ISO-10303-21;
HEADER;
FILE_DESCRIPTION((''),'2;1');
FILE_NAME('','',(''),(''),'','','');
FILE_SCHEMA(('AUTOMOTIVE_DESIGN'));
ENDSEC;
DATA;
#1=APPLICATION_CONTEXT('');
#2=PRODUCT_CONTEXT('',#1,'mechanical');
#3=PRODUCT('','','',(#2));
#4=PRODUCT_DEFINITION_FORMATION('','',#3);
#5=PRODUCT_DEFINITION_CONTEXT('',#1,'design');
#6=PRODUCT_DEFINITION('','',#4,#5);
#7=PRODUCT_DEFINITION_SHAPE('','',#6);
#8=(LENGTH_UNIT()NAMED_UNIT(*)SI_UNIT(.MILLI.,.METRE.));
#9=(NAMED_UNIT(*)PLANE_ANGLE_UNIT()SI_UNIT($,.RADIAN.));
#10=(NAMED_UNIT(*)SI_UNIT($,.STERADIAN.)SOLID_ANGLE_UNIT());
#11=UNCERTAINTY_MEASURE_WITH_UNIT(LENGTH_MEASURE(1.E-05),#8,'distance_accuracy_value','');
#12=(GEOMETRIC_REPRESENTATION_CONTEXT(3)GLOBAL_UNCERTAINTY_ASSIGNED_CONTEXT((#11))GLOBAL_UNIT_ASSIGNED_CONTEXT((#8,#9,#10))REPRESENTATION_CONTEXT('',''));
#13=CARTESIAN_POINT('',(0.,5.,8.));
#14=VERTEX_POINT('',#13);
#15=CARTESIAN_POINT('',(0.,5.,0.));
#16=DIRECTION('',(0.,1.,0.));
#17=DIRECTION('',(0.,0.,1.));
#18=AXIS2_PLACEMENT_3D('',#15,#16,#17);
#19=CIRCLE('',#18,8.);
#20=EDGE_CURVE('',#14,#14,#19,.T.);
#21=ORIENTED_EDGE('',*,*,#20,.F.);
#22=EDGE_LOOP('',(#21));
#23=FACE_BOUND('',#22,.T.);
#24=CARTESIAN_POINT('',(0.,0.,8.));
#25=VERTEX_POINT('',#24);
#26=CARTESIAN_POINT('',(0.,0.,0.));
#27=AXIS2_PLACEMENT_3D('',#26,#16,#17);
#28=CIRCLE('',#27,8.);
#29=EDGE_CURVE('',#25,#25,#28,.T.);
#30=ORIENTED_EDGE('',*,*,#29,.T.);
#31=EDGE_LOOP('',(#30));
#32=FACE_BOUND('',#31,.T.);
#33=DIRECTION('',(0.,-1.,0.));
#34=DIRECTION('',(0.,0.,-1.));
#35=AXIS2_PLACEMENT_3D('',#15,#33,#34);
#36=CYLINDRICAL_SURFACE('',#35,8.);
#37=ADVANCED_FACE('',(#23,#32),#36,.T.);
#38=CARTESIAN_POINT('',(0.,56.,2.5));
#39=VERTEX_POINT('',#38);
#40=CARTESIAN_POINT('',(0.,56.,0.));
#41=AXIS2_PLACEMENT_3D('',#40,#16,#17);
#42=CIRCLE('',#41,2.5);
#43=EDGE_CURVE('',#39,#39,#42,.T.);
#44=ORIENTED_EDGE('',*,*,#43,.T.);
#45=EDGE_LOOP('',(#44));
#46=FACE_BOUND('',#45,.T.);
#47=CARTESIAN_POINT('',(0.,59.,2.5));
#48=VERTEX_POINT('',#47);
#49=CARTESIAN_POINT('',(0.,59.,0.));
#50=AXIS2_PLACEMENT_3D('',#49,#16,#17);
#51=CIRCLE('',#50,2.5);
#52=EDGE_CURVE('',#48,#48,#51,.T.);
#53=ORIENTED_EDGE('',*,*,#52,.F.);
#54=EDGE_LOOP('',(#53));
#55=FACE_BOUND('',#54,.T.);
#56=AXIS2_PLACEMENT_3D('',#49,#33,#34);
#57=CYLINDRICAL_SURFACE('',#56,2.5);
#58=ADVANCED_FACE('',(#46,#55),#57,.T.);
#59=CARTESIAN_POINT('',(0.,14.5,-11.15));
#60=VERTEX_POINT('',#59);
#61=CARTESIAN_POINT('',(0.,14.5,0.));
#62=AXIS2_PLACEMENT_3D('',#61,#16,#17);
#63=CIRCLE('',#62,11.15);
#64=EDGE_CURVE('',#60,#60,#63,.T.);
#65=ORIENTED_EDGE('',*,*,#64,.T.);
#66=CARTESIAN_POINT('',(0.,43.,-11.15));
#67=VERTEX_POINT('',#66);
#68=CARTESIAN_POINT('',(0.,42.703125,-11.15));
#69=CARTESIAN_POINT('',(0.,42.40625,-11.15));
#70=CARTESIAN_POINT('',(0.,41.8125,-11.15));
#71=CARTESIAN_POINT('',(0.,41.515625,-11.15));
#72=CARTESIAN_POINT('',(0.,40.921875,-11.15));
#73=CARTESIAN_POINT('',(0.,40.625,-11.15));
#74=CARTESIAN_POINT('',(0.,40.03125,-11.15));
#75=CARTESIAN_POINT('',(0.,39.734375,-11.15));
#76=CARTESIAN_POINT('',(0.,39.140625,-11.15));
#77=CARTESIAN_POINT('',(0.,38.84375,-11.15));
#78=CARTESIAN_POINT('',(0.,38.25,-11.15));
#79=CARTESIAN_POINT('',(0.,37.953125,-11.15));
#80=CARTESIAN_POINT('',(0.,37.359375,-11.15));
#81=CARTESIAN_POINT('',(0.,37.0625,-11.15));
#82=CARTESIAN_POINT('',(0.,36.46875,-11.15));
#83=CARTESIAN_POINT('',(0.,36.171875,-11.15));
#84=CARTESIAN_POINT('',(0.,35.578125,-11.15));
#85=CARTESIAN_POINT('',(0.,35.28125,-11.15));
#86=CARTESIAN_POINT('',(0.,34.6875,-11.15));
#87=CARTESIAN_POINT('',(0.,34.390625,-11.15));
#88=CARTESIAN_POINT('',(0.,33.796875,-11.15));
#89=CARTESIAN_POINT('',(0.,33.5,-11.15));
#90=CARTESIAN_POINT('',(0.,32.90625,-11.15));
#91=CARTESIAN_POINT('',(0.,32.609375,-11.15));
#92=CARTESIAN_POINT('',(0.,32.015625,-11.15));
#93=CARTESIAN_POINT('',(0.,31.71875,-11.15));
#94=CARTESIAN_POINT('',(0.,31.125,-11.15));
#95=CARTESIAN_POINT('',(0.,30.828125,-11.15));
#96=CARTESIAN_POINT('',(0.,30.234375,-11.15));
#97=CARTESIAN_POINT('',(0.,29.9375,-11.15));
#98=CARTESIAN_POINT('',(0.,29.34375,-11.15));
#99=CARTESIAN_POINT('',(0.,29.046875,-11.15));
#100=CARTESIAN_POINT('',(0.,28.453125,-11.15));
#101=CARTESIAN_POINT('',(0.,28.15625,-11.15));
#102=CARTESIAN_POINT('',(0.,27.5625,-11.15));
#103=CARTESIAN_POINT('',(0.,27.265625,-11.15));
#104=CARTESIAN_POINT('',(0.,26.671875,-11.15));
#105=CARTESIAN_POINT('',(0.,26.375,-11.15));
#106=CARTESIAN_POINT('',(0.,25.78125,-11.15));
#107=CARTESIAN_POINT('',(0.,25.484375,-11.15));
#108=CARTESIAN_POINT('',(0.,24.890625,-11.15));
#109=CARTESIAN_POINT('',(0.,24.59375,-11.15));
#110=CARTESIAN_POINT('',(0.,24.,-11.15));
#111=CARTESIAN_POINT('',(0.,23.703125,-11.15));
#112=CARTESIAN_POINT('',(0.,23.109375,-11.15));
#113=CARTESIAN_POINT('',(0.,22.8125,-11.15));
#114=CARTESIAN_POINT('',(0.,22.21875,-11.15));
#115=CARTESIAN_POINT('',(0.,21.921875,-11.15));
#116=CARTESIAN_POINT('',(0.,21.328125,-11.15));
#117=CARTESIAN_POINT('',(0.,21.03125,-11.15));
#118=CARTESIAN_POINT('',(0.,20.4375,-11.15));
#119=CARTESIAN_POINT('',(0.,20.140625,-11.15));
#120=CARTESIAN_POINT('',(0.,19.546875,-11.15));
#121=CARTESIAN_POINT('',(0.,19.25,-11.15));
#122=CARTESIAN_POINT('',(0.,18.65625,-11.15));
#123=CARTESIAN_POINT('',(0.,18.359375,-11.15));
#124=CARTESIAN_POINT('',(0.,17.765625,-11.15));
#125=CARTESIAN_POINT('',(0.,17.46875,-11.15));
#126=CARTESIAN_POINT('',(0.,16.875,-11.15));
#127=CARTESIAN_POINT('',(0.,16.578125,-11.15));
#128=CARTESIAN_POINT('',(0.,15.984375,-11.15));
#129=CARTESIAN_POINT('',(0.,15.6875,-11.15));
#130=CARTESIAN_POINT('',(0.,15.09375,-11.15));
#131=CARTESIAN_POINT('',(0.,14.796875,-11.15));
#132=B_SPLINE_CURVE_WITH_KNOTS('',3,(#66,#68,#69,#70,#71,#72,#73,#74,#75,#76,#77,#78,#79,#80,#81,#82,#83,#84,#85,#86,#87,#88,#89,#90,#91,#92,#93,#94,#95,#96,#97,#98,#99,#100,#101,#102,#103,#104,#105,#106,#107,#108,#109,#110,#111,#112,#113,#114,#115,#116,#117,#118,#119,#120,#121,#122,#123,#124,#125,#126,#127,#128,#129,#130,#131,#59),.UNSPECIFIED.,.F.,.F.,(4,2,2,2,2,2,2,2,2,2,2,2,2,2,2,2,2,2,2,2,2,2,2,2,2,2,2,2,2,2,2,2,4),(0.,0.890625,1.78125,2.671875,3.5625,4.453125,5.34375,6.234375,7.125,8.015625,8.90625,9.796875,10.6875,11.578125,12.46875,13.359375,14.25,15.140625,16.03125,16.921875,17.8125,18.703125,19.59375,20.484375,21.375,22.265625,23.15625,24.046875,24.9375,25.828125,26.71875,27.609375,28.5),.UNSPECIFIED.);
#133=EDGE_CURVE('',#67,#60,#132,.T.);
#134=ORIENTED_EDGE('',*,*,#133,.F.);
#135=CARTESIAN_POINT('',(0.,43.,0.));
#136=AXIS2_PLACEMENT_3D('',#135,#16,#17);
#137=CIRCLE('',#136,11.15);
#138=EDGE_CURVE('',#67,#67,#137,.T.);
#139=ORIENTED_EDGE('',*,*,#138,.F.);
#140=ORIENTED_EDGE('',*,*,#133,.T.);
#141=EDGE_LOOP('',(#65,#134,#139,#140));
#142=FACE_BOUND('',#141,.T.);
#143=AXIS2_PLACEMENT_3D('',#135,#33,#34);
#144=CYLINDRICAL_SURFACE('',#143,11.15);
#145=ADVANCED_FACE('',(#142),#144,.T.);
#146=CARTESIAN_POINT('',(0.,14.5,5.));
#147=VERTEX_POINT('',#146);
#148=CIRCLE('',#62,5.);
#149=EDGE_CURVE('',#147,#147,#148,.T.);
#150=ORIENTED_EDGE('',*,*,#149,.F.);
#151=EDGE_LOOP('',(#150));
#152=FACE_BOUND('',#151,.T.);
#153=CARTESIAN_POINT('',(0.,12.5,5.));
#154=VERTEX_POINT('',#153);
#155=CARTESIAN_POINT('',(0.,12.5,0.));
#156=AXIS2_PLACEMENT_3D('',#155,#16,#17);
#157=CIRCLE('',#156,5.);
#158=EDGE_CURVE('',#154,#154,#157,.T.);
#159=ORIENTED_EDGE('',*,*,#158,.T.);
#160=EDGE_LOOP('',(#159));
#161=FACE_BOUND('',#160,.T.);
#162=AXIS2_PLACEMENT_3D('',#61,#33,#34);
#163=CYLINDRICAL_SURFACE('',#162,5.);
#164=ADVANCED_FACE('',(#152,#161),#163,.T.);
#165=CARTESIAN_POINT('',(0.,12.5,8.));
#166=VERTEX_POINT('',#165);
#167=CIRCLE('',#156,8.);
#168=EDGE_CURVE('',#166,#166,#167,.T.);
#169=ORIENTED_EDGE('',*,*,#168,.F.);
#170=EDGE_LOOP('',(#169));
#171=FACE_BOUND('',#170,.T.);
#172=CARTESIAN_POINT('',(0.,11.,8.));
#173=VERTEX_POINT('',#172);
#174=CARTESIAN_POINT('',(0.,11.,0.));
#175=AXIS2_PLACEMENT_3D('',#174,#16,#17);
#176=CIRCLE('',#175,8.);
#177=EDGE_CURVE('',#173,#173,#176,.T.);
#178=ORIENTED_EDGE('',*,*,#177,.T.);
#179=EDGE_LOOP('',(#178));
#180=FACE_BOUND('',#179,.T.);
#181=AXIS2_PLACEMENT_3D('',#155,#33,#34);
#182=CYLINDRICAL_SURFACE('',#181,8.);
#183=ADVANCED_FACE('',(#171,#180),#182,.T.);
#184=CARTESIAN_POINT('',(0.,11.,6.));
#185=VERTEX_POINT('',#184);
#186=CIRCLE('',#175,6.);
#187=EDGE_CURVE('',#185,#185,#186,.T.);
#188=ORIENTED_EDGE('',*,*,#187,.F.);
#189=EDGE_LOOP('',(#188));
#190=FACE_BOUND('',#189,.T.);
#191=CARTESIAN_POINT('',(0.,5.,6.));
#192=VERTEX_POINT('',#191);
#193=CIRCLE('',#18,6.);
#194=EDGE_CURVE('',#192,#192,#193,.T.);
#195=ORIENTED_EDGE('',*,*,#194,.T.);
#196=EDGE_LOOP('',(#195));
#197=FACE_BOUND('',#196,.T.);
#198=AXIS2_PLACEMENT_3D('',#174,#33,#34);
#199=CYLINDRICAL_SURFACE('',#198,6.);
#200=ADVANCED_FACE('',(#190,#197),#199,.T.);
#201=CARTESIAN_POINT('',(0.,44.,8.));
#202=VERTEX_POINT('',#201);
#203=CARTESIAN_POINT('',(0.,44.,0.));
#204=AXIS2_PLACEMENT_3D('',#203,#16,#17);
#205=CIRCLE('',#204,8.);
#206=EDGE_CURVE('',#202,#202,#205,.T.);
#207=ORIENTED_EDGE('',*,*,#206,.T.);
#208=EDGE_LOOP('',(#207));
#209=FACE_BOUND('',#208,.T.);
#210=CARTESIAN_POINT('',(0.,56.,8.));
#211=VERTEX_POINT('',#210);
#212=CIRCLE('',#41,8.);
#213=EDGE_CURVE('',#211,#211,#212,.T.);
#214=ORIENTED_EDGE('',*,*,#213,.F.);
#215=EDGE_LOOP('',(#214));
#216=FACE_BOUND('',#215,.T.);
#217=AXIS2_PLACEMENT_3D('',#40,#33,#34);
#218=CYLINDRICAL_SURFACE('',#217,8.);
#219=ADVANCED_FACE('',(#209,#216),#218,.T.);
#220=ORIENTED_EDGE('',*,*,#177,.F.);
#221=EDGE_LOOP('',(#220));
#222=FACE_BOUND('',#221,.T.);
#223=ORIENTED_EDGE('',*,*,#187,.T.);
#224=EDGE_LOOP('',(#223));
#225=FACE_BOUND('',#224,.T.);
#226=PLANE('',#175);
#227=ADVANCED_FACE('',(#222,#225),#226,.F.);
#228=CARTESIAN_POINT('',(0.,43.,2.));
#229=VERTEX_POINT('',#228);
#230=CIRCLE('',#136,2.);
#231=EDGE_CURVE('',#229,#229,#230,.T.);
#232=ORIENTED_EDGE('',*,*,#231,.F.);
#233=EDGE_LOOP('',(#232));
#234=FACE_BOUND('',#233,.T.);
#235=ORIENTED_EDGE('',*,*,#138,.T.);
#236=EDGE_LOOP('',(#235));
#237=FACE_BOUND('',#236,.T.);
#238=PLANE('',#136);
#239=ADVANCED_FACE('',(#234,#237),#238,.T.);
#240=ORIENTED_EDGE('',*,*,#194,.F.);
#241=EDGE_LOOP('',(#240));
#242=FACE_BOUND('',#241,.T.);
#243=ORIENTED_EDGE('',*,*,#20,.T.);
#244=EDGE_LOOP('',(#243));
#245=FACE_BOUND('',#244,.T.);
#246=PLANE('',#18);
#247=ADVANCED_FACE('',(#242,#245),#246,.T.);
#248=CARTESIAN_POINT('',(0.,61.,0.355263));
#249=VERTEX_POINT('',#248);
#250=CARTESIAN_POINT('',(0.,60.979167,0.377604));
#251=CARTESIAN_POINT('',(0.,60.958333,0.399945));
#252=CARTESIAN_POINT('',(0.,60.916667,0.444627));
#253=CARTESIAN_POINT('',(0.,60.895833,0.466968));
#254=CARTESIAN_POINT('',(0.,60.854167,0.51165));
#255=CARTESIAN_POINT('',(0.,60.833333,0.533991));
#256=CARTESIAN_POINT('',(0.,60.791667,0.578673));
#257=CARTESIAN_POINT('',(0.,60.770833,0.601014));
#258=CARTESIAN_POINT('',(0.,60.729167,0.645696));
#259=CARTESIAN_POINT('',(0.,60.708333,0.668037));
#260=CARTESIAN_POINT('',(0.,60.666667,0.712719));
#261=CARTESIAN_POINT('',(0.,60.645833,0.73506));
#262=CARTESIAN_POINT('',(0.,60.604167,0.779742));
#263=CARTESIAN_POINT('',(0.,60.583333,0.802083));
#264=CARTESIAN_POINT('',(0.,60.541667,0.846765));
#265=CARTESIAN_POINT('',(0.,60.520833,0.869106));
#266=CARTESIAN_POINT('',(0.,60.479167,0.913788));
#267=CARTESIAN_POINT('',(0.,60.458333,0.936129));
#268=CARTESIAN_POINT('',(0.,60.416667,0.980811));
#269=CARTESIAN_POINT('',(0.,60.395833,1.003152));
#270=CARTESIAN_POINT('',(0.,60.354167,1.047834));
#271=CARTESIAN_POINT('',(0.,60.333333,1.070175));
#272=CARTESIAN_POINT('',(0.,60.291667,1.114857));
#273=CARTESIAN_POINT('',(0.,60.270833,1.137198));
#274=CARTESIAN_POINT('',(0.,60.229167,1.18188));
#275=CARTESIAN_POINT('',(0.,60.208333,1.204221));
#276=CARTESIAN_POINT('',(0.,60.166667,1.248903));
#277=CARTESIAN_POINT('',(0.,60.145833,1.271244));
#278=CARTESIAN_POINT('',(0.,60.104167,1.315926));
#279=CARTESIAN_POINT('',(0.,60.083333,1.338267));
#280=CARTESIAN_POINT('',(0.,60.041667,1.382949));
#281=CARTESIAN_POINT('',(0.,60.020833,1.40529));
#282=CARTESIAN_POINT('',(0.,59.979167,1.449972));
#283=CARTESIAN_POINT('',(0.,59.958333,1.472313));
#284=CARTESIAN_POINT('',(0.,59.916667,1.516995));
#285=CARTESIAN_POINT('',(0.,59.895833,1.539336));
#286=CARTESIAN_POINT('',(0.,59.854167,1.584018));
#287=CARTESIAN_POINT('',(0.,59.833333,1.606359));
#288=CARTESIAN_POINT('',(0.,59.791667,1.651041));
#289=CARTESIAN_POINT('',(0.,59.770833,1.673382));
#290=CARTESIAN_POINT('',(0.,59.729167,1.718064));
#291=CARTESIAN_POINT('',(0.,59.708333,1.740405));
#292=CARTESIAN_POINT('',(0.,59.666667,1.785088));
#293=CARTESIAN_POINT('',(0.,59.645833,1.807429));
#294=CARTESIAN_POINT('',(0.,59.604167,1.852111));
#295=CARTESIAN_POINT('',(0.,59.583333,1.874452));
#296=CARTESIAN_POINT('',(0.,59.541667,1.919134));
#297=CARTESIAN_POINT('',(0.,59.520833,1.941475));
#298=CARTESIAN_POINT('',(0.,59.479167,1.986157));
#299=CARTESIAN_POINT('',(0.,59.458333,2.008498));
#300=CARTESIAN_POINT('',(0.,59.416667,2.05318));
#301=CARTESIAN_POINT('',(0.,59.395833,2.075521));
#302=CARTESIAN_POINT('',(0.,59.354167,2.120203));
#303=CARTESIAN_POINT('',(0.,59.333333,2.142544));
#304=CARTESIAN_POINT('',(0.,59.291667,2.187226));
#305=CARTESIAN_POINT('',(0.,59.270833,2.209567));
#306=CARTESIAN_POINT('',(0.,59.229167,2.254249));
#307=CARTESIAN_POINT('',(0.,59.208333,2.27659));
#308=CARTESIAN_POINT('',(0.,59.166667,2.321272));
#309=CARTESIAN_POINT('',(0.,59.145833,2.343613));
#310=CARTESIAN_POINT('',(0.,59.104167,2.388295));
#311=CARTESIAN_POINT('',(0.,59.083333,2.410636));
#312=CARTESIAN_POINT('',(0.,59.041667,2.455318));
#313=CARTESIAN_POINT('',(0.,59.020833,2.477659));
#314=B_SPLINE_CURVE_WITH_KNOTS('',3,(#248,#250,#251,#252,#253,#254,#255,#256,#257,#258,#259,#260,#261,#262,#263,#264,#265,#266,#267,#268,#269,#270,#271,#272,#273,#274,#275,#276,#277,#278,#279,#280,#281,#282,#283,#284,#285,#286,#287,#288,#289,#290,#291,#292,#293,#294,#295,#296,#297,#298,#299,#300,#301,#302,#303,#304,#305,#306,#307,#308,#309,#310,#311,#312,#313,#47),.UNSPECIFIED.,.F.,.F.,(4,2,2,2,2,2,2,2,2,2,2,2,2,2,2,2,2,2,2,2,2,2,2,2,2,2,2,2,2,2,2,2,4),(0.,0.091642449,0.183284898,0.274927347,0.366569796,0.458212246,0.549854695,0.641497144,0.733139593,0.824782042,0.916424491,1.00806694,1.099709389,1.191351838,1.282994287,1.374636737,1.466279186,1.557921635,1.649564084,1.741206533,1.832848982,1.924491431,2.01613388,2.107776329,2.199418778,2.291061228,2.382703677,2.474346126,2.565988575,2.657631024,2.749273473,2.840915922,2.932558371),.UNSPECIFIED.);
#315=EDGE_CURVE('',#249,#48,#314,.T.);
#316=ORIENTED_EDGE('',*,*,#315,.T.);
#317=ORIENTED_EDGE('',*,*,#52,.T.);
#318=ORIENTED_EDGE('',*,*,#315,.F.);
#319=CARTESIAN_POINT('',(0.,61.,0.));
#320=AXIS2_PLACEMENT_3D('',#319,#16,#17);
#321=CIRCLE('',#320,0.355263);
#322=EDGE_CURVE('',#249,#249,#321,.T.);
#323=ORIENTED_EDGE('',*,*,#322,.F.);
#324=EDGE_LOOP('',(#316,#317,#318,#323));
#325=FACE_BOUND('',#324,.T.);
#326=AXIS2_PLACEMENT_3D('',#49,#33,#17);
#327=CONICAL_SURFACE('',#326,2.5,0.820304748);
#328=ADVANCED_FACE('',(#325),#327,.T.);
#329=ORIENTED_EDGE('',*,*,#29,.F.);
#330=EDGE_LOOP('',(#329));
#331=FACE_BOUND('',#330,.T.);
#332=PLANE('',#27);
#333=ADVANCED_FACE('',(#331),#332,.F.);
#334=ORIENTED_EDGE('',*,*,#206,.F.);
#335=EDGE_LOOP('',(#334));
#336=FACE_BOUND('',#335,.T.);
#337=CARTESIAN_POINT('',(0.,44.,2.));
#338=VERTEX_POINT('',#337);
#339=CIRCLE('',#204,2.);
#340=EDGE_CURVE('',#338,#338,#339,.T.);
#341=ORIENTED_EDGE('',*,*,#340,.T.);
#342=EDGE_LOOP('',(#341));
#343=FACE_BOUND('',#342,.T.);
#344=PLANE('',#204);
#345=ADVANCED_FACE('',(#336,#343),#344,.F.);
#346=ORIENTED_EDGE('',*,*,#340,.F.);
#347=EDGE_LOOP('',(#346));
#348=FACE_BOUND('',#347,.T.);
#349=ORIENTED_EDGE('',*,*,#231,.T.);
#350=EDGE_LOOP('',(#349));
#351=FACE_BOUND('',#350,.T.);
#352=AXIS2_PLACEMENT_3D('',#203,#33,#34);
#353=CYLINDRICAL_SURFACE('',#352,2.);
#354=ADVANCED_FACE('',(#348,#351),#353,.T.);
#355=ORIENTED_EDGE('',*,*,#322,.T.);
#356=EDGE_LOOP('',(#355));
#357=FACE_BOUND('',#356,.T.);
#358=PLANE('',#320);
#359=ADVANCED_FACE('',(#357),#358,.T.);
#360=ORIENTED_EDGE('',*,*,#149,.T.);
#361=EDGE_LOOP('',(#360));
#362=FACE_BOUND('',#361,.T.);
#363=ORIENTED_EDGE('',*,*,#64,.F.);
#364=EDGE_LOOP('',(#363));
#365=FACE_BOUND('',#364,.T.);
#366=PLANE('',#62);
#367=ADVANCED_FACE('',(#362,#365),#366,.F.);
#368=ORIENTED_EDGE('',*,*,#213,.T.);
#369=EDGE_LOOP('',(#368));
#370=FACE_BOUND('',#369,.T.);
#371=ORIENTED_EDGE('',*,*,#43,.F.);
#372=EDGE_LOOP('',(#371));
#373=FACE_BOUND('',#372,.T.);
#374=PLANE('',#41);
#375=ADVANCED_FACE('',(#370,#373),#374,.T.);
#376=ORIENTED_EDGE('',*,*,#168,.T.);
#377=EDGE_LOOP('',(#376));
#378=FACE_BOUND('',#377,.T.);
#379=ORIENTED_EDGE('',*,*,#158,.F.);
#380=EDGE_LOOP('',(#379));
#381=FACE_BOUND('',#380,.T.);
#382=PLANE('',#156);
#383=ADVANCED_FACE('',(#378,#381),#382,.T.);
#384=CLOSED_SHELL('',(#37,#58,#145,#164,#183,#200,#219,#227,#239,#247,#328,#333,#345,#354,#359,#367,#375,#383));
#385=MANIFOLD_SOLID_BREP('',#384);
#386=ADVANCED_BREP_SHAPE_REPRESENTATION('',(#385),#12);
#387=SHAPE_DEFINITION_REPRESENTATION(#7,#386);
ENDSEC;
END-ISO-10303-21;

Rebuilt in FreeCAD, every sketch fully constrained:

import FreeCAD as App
import Part
import Sketcher

V = App.Vector
Q = App.Units.Quantity

doc = App.newDocument("Part")
body = doc.addObject("PartDesign::Body", "Body")

sketch1 = body.newObject("Sketcher::SketchObject", "Sketch")
sketch1.AttachmentSupport = (doc.getObject("XZ_Plane"), [""])
sketch1.MapMode = "FlatFace"
sketch1.addGeometry(Part.Circle(V(0, 0, 0), V(0, 0, 1), 8), False)
sketch1.addConstraint([
    Sketcher.Constraint("Coincident", 0, 3, -1, 1),
    Sketcher.Constraint("Diameter", 0, Q("16 mm")),
])
pad1 = body.newObject("PartDesign::Pad", "Pad")
pad1.Profile = sketch1
pad1.Length = 5
pad1.Reversed = True

sketch2 = body.newObject("Sketcher::SketchObject", "Sketch001")
sketch2.AttachmentSupport = (doc.getObject("XZ_Plane"), [""])
sketch2.MapMode = "FlatFace"
sketch2.AttachmentOffset = App.Placement(V(0, 0, -5), App.Rotation())
sketch2.addGeometry(Part.Circle(V(0, 0, 0), V(0, 0, 1), 6), False)
sketch2.addConstraint([
    Sketcher.Constraint("Coincident", 0, 3, -1, 1),
    Sketcher.Constraint("Diameter", 0, Q("12 mm")),
])
pad2 = body.newObject("PartDesign::Pad", "Pad001")
pad2.Profile = sketch2
pad2.Length = 6
pad2.Reversed = True

sketch3 = body.newObject("Sketcher::SketchObject", "Sketch002")
sketch3.AttachmentSupport = (doc.getObject("XZ_Plane"), [""])
sketch3.MapMode = "FlatFace"
sketch3.AttachmentOffset = App.Placement(V(0, 0, -11), App.Rotation())
sketch3.addGeometry(Part.Circle(V(0, 0, 0), V(0, 0, 1), 8), False)
sketch3.addConstraint([
    Sketcher.Constraint("Coincident", 0, 3, -1, 1),
    Sketcher.Constraint("Diameter", 0, Q("16 mm")),
])
pad3 = body.newObject("PartDesign::Pad", "Pad002")
pad3.Profile = sketch3
pad3.Length = 1.5
pad3.Reversed = True

sketch4 = body.newObject("Sketcher::SketchObject", "Sketch003")
sketch4.AttachmentSupport = (doc.getObject("XZ_Plane"), [""])
sketch4.MapMode = "FlatFace"
sketch4.AttachmentOffset = App.Placement(V(0, 0, -12.5), App.Rotation())
sketch4.addGeometry(Part.Circle(V(0, 0, 0), V(0, 0, 1), 5), False)
sketch4.addConstraint([
    Sketcher.Constraint("Coincident", 0, 3, -1, 1),
    Sketcher.Constraint("Diameter", 0, Q("10 mm")),
])
pad4 = body.newObject("PartDesign::Pad", "Pad003")
pad4.Profile = sketch4
pad4.Length = 2
pad4.Reversed = True

sketch5 = body.newObject("Sketcher::SketchObject", "Sketch004")
sketch5.AttachmentSupport = (doc.getObject("XZ_Plane"), [""])
sketch5.MapMode = "FlatFace"
sketch5.AttachmentOffset = App.Placement(V(0, 0, -14.5), App.Rotation())
sketch5.addGeometry(Part.Circle(V(0, 0, 0), V(0, 0, 1), 11), False)
sketch5.addConstraint([
    Sketcher.Constraint("Coincident", 0, 3, -1, 1),
    Sketcher.Constraint("Diameter", 0, Q("22.3 mm")),
])
pad5 = body.newObject("PartDesign::Pad", "Pad004")
pad5.Profile = sketch5
pad5.Length = 28.5
pad5.Reversed = True

sketch6 = body.newObject("Sketcher::SketchObject", "Sketch005")
sketch6.AttachmentSupport = (doc.getObject("XZ_Plane"), [""])
sketch6.MapMode = "FlatFace"
sketch6.AttachmentOffset = App.Placement(V(0, 0, -43), App.Rotation())
sketch6.addGeometry(Part.Circle(V(0, 0, 0), V(0, 0, 1), 2), False)
sketch6.addConstraint([
    Sketcher.Constraint("Coincident", 0, 3, -1, 1),
    Sketcher.Constraint("Diameter", 0, Q("4 mm")),
])
pad6 = body.newObject("PartDesign::Pad", "Pad005")
pad6.Profile = sketch6
pad6.Length = 1
pad6.Reversed = True

sketch7 = body.newObject("Sketcher::SketchObject", "Sketch006")
sketch7.AttachmentSupport = (doc.getObject("XZ_Plane"), [""])
sketch7.MapMode = "FlatFace"
sketch7.AttachmentOffset = App.Placement(V(0, 0, -44), App.Rotation())
sketch7.addGeometry(Part.Circle(V(0, 0, 0), V(0, 0, 1), 8), False)
sketch7.addConstraint([
    Sketcher.Constraint("Coincident", 0, 3, -1, 1),
    Sketcher.Constraint("Diameter", 0, Q("16 mm")),
])
pad7 = body.newObject("PartDesign::Pad", "Pad006")
pad7.Profile = sketch7
pad7.Length = 12
pad7.Reversed = True

sketch8 = body.newObject("Sketcher::SketchObject", "Sketch007")
sketch8.AttachmentSupport = (doc.getObject("XZ_Plane"), [""])
sketch8.MapMode = "FlatFace"
sketch8.AttachmentOffset = App.Placement(V(0, 0, -56), App.Rotation())
sketch8.addGeometry(Part.Circle(V(0, 0, 0), V(0, 0, 1), 2.5), False)
sketch8.addConstraint([
    Sketcher.Constraint("Coincident", 0, 3, -1, 1),
    Sketcher.Constraint("Diameter", 0, Q("5 mm")),
])
pad8 = body.newObject("PartDesign::Pad", "Pad007")
pad8.Profile = sketch8
pad8.Length = 3
pad8.Reversed = True

sketch9 = body.newObject("Sketcher::SketchObject", "Sketch008")
sketch9.AttachmentSupport = (doc.getObject("XZ_Plane"), [""])
sketch9.MapMode = "FlatFace"
sketch9.AttachmentOffset = App.Placement(V(0, 0, -59), App.Rotation())
sketch9.addGeometry(Part.Circle(V(0, 0, 0), V(0, 0, 1), 2.5), False)
sketch9.addConstraint([
    Sketcher.Constraint("Coincident", 0, 3, -1, 1),
    Sketcher.Constraint("Diameter", 0, Q("5 mm")),
])
pad9 = body.newObject("PartDesign::Pad", "Pad008")
pad9.Profile = sketch9
pad9.Length = 2
pad9.Reversed = True
pad9.TaperAngle = -47

doc.recompute()
